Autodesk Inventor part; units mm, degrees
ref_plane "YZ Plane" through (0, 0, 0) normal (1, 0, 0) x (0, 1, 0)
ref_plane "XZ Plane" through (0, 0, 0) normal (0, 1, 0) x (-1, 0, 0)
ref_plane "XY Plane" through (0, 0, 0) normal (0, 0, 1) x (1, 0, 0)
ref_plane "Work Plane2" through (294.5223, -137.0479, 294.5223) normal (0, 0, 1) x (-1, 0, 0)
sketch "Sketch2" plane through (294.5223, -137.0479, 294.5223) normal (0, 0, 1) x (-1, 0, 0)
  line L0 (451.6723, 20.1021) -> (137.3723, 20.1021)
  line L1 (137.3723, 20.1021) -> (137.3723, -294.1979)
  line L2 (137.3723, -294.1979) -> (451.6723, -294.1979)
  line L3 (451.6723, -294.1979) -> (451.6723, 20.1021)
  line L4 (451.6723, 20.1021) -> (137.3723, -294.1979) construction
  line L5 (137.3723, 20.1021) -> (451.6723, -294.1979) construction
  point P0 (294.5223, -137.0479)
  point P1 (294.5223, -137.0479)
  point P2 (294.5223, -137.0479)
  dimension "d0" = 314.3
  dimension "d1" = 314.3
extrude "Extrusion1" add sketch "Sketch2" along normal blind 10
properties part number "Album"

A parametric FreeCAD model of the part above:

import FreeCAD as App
import Part
import Sketcher
from FreeCAD import Vector
Q = App.Units.Quantity

doc = App.newDocument("Part")
params = doc.addObject("Spreadsheet::Sheet", "Params")
for row, (alias, value) in enumerate([
    ("sketch1_width", "314.3 mm"),
    ("pad1_length", "10 mm"),
], start=1):
    params.set(f"A{row}", alias)
    params.set(f"B{row}", "=" + value)
    params.setAlias(f"B{row}", alias)

body = doc.addObject("PartDesign::Body", "Body")

sketch1 = doc.addObject("Sketcher::SketchObject", "Sketch")
body.addObject(sketch1)
sketch1.AttachmentSupport = (doc.XY_Plane, [""])
sketch1.MapMode = "FlatFace"
sketch1.AttachmentOffset = App.Placement(Vector(0, 0, 294.5223), App.Rotation())
sketch1.addGeometry([
    Part.LineSegment(Vector(-157.15, 157.15, 0), Vector(-157.15, -157.15, 0)),
    Part.LineSegment(Vector(-157.15, -157.15, 0), Vector(157.15, -157.15, 0)),
    Part.LineSegment(Vector(157.15, -157.15, 0), Vector(157.15, 157.15, 0)),
    Part.LineSegment(Vector(157.15, 157.15, 0), Vector(-157.15, 157.15, 0)),
], False)
sketch1.addConstraint([
    Sketcher.Constraint("Coincident", 0, 2, 1, 1),
    Sketcher.Constraint("Coincident", 1, 2, 2, 1),
    Sketcher.Constraint("Coincident", 2, 2, 3, 1),
    Sketcher.Constraint("Coincident", 3, 2, 0, 1),
    Sketcher.Constraint("Vertical", 0),
    Sketcher.Constraint("Horizontal", 1),
    Sketcher.Constraint("Vertical", 2),
    Sketcher.Constraint("Horizontal", 3),
    Sketcher.Constraint("Symmetric", 0, 2, 2, 2, -1, 1),
    Sketcher.Constraint("Equal", 3, 0),
    Sketcher.Constraint("DistanceX", 1, 1, 1, 2, Q("314.3 mm")),
])
sketch1.setExpression("Constraints[10]", "Params.sketch1_width")
pad1 = doc.addObject("PartDesign::Pad", "Pad")
body.addObject(pad1)
pad1.Profile = sketch1
pad1.setExpression("Length", "Params.pad1_length")

doc.recompute()
